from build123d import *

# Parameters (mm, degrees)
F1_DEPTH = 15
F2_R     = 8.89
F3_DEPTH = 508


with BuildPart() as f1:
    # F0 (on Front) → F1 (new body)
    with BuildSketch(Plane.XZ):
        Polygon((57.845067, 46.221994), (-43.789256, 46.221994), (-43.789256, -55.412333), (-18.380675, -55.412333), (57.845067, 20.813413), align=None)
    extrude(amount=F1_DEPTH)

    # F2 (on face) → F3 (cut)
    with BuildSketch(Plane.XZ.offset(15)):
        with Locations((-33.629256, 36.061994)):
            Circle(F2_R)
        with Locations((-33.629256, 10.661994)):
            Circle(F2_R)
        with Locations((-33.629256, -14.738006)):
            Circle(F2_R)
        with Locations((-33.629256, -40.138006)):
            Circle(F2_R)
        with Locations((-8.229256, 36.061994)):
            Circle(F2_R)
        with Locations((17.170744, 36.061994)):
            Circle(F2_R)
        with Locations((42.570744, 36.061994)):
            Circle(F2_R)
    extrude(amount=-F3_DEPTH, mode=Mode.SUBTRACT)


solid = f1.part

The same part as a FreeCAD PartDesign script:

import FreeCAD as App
import Part
import Sketcher
Q = App.Units.Quantity


def add_polygon(sketch, points):
    """Adds a closed chain of lines whose ends are joined by coincident constraints."""
    first, n = sketch.GeometryCount, len(points)
    for a, b in zip(points, points[1:] + points[:1]):
        sketch.addGeometry(Part.LineSegment(App.Vector(*a, 0), App.Vector(*b, 0)), False)
    for i in range(n):
        sketch.addConstraint(Sketcher.Constraint("Coincident", first + i, 2, first + (i + 1) % n, 1))

doc = App.newDocument("Part")
body = doc.addObject("PartDesign::Body", "Body")

sketch1 = body.newObject("Sketcher::SketchObject", "Sketch")
sketch1.AttachmentSupport = (doc.getObject("XZ_Plane"), [""])
sketch1.MapMode = "FlatFace"
add_polygon(sketch1, [(58, 46), (-44, 46), (-44, -55), (-18, -55), (58, 21)])
sketch1.addConstraint([
    Sketcher.Constraint("Horizontal", 0),
    Sketcher.Constraint("Vertical", 1),
    Sketcher.Constraint("Horizontal", 2),
    Sketcher.Constraint("Vertical", 4),
    Sketcher.Constraint("Equal", 2, 4),
    Sketcher.Constraint("Angle", 3, Q("45.000002 deg")),
    Sketcher.Constraint("DistanceX", 2, 1, 2, 2, 25.408581),
    Sketcher.Constraint("Distance", 3, 107.799481),
    Sketcher.Constraint("DistanceX", 0, 2, -1, 1, 43.789256),
    Sketcher.Constraint("DistanceY", -1, 1, 0, 2, 46.221994),
])
pad1 = body.newObject("PartDesign::Pad", "Pad")
pad1.Profile = sketch1
pad1.Length = 15

sketch2 = body.newObject("Sketcher::SketchObject", "Sketch001")
sketch2.AttachmentSupport = (doc.getObject("XZ_Plane"), [""])
sketch2.MapMode = "FlatFace"
sketch2.AttachmentOffset = App.Placement(App.Vector(0, 0, 15), App.Rotation())
sketch2.addGeometry([
    Part.Circle(App.Vector(-34, 36, 0), App.Vector(0, 0, 1), 9),
    Part.Circle(App.Vector(-34, 11, 0), App.Vector(0, 0, 1), 9),
    Part.Circle(App.Vector(-34, -15, 0), App.Vector(0, 0, 1), 9),
    Part.Circle(App.Vector(-34, -40, 0), App.Vector(0, 0, 1), 9),
    Part.Circle(App.Vector(-8, 36, 0), App.Vector(0, 0, 1), 9),
    Part.Circle(App.Vector(17, 36, 0), App.Vector(0, 0, 1), 9),
    Part.Circle(App.Vector(43, 36, 0), App.Vector(0, 0, 1), 9),
], False)
sketch2.addConstraint([
    Sketcher.Constraint("Equal", 0, 1),
    Sketcher.Constraint("Equal", 1, 2),
    Sketcher.Constraint("Equal", 2, 3),
    Sketcher.Constraint("Equal", 3, 4),
    Sketcher.Constraint("Equal", 4, 5),
    Sketcher.Constraint("Equal", 5, 6),
    Sketcher.Constraint("Horizontal", 0, 3, 4, 3),
    Sketcher.Constraint("Horizontal", 4, 3, 5, 3),
    Sketcher.Constraint("Horizontal", 5, 3, 6, 3),
    Sketcher.Constraint("Vertical", 0, 3, 1, 3),
    Sketcher.Constraint("Vertical", 1, 3, 2, 3),
    Sketcher.Constraint("Vertical", 2, 3, 3, 3),
    Sketcher.Constraint("Diameter", 0, Q("0.7 in")),
    Sketcher.Constraint("DistanceY", 1, 3, 0, 3, Q("1 in")),
    Sketcher.Constraint("DistanceY", 2, 3, 1, 3, Q("1 in")),
    Sketcher.Constraint("DistanceY", 3, 3, 2, 3, Q("1 in")),
    Sketcher.Constraint("DistanceX", 0, 3, 4, 3, Q("1 in")),
    Sketcher.Constraint("DistanceX", 4, 3, 5, 3, Q("1 in")),
    Sketcher.Constraint("DistanceX", 5, 3, 6, 3, Q("1 in")),
    Sketcher.Constraint("DistanceX", 0, 3, -1, 1, 33.629256),
    Sketcher.Constraint("DistanceY", -1, 1, 0, 3, 36.061994),
])
pocket1 = body.newObject("PartDesign::Pocket", "Pocket")
pocket1.Profile = sketch2
pocket1.Length = Q("20 in")

doc.recompute()
